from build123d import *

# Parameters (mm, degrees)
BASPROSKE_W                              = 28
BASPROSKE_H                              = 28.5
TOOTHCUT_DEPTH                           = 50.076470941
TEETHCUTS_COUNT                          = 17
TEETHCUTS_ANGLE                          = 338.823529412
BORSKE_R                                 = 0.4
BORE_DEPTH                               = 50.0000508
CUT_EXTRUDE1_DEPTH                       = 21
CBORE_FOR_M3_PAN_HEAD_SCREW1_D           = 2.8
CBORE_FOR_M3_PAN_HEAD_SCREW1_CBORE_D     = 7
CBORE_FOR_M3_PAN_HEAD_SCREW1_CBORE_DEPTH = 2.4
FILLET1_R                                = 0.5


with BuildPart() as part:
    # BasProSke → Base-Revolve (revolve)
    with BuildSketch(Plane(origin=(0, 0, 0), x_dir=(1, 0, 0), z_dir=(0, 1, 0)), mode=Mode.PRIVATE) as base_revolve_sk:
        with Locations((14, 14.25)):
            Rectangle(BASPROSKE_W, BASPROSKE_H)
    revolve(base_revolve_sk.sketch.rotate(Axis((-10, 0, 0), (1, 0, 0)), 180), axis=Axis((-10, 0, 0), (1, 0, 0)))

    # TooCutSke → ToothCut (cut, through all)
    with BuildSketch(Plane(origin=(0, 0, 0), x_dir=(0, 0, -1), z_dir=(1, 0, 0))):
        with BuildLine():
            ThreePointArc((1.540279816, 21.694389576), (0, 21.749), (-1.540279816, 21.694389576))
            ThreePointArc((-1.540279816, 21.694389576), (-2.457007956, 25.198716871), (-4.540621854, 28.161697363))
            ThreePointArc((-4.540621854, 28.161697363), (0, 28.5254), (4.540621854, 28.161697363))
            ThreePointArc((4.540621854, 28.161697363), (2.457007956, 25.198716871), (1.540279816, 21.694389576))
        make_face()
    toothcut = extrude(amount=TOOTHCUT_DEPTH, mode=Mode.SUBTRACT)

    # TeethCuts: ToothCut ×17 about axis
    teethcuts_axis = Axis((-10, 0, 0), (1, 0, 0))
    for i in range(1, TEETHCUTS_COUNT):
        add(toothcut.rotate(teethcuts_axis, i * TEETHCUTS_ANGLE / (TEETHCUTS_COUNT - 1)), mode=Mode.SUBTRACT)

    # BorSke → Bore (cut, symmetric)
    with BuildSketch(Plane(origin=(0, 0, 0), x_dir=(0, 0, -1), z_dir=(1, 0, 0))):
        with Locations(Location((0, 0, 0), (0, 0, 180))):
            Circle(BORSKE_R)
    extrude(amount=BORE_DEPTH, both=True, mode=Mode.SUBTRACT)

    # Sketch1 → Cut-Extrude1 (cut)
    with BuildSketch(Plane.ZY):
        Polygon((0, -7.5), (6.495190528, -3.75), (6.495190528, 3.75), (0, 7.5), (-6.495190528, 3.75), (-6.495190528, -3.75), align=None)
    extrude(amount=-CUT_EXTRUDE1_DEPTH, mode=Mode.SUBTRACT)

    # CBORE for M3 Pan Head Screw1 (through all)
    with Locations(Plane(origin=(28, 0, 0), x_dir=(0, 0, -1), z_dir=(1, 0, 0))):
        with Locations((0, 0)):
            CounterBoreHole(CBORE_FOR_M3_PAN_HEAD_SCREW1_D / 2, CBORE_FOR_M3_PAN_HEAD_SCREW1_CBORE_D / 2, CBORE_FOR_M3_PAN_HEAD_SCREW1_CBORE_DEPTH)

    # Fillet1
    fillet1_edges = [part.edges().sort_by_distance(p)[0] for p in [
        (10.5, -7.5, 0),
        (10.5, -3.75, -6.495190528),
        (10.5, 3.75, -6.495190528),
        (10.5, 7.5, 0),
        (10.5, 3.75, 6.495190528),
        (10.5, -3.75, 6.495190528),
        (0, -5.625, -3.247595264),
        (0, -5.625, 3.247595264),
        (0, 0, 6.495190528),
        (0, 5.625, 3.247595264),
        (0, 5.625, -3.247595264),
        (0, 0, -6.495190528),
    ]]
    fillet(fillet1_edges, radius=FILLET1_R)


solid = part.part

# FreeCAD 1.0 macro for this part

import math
import FreeCAD as App
import Part
import Sketcher

V = App.Vector
Q = App.Units.Quantity


def edges_at(feature, points):
    """Names of the edges that pass closest to the given points."""
    edges = feature.Shape.Edges
    near = lambda p: min(range(len(edges)), key=lambda i: edges[i].distToShape(Part.Vertex(*p))[0])
    return sorted({f"Edge{near(p) + 1}" for p in points})

doc = App.newDocument("Part")
params = doc.addObject("Spreadsheet::Sheet", "Params")
for row, (alias, value) in enumerate([
    ("sketch1_width", "28 mm"),
    ("sketch1_height", "28.5 mm"),
    ("revolution_angle", "360 deg"),
    ("sketch2_radius", "10.2 mm"),
    ("sketch3_diameter", "0.8 mm"),
    ("pocket2_length", "100.000102 mm"),
    ("sketch4_width", "7.5 mm"),
    ("pocket3_length", "21 mm"),
    ("sketch5_diameter", "2.8 mm"),
    ("hole_diameter", "2.8 mm"),
    ("hole_cbore_diameter", "7 mm"),
    ("hole_cbore_depth", "2.4 mm"),
    ("fillet_radius", "0.5 mm"),
], start=1):
    params.set(f"A{row}", alias)
    params.set(f"B{row}", "=" + value)
    params.setAlias(f"B{row}", alias)

body = doc.addObject("PartDesign::Body", "Body")

# Sketch on XZ plane
sketch1 = body.newObject("Sketcher::SketchObject", "Sketch")
sketch1.AttachmentSupport = (doc.getObject("XZ_Plane"), [""])
sketch1.MapMode = "FlatFace"
sketch1.addGeometry([
    Part.LineSegment(V(0, -28, 0), V(0, 0, 0)),
    Part.LineSegment(V(0, 0, 0), V(28, 0, 0)),
    Part.LineSegment(V(28, 0, 0), V(28, -28, 0)),
    Part.LineSegment(V(28, -28, 0), V(0, -28, 0)),
], False)
sketch1.addConstraint([
    Sketcher.Constraint("Coincident", 0, 2, 1, 1),
    Sketcher.Constraint("Coincident", 1, 2, 2, 1),
    Sketcher.Constraint("Coincident", 2, 2, 3, 1),
    Sketcher.Constraint("Coincident", 3, 2, 0, 1),
    Sketcher.Constraint("Vertical", 0),
    Sketcher.Constraint("Horizontal", 1),
    Sketcher.Constraint("Vertical", 2),
    Sketcher.Constraint("Horizontal", 3),
    Sketcher.Constraint("Coincident", 0, 2, -1, 1),
    Sketcher.Constraint("DistanceX", 1, 1, 1, 2, 28.0),
    Sketcher.Constraint("DistanceY", 0, 1, 0, 2, 28.5),
])
sketch1.setExpression("Constraints[9]", "Params.sketch1_width")
sketch1.setExpression("Constraints[10]", "Params.sketch1_height")
revolution = body.newObject("PartDesign::Revolution", "Revolution")
revolution.Profile = sketch1
revolution.ReferenceAxis = (sketch1, ["H_Axis"])
revolution.setExpression("Angle", "Params.revolution_angle")

# Sketch on YZ plane
sketch2 = body.newObject("Sketcher::SketchObject", "Sketch001")
sketch2.AttachmentSupport = (doc.getObject("YZ_Plane"), [""])
sketch2.MapMode = "FlatFace"
sketch2.addGeometry([
    Part.ArcOfCircle(Part.Circle(V(0, 0, 0), V(0, 0, 1), 21.7), math.radians(-4.06), math.radians(4.06)),
    Part.ArcOfCircle(Part.Circle(V(20.9, -11.7, 0), V(0, 0, 1), 10.2), math.radians(45), math.radians(86)),
    Part.ArcOfCircle(Part.Circle(V(0, 0, 0), V(0, 0, 1), 28.5), math.radians(-9.16), math.radians(9.16)),
    Part.ArcOfCircle(Part.Circle(V(20.9, 11.7, 0), V(0, 0, 1), 10.2), math.radians(-86), math.radians(-45)),
], False)
sketch2.addConstraint([
    Sketcher.Constraint("Coincident", 0, 1, 1, 2),
    Sketcher.Constraint("Coincident", 1, 1, 2, 1),
    Sketcher.Constraint("Coincident", 2, 2, 3, 2),
    Sketcher.Constraint("Coincident", 3, 1, 0, 2),
    Sketcher.Constraint("Coincident", 0, 3, -1, 1),
    Sketcher.Constraint("Coincident", 2, 3, -1, 1),
    Sketcher.Constraint("Equal", 1, 3),
    Sketcher.Constraint("Symmetric", 1, 3, 3, 3, -1),
    Sketcher.Constraint("Radius", 1, 10.2),
    Sketcher.Constraint("Radius", 0, 21.749),
    Sketcher.Constraint("Radius", 2, 28.5254),
    Sketcher.Constraint("DistanceY", 0, 1, 2, 2, 6.080902),
    Sketcher.Constraint("DistanceX", -1, 1, 1, 3, 20.906132),
])
sketch2.setExpression("Constraints[8]", "Params.sketch2_radius")
pocket1 = body.newObject("PartDesign::Pocket", "Pocket")
pocket1.Profile = sketch2
pocket1.Type = "ThroughAll"
pocket1.Reversed = True
doc.recompute()

polarpattern = body.newObject("PartDesign::PolarPattern", "PolarPattern")
polarpattern.Originals = [pocket1]
polarpattern.Axis = (doc.getObject("X_Axis"), [""])
polarpattern.Angle = 360
polarpattern.Occurrences = 17
body.Tip = polarpattern

# Sketch on YZ plane
sketch3 = body.newObject("Sketcher::SketchObject", "Sketch002")
sketch3.AttachmentSupport = (doc.getObject("YZ_Plane"), [""])
sketch3.MapMode = "FlatFace"
sketch3.addGeometry(Part.Circle(V(0, 0, 0), V(0, 0, 1), 0.4), False)
sketch3.addConstraint([
    Sketcher.Constraint("Coincident", 0, 3, -1, 1),
    Sketcher.Constraint("Diameter", 0, 0.8),
])
sketch3.setExpression("Constraints[1]", "Params.sketch3_diameter")
pocket2 = body.newObject("PartDesign::Pocket", "Pocket001")
pocket2.Profile = sketch3
pocket2.setExpression("Length", "Params.pocket2_length")
pocket2.Midplane = True

# Sketch on YZ plane
sketch4 = body.newObject("Sketcher::SketchObject", "Sketch003")
sketch4.AttachmentSupport = (doc.getObject("YZ_Plane"), [""])
sketch4.MapMode = "FlatFace"
sketch4.addGeometry([
    Part.LineSegment(V(-8, 0, 0), V(-4, 6, 0)),  # 0
    Part.LineSegment(V(-4, 6, 0), V(4, 6, 0)),  # 1
    Part.LineSegment(V(4, 6, 0), V(8, 0, 0)),  # 2
    Part.LineSegment(V(8, 0, 0), V(4, -6, 0)),  # 3
    Part.LineSegment(V(4, -6, 0), V(-4, -6, 0)),  # 4
    Part.LineSegment(V(-4, -6, 0), V(-8, 0, 0)),  # 5
], False)
sketch4.addConstraint([
    Sketcher.Constraint("Coincident", 0, 2, 1, 1),
    Sketcher.Constraint("Coincident", 1, 2, 2, 1),
    Sketcher.Constraint("Coincident", 2, 2, 3, 1),
    Sketcher.Constraint("Coincident", 3, 2, 4, 1),
    Sketcher.Constraint("Coincident", 4, 2, 5, 1),
    Sketcher.Constraint("Coincident", 5, 2, 0, 1),
    Sketcher.Constraint("Horizontal", 1),
    Sketcher.Constraint("Horizontal", 4),
    Sketcher.Constraint("Symmetric", 0, 2, 3, 2, -1, 1),
    Sketcher.Constraint("Symmetric", 2, 2, 5, 2, -1, 1),
    Sketcher.Constraint("PointOnObject", 2, 2, -1),
    Sketcher.Constraint("Parallel", 2, 5),
    Sketcher.Constraint("Vertical", 1, 2, 3, 2),
    Sketcher.Constraint("Angle", 0, Q("60 deg")),
    Sketcher.Constraint("DistanceX", 1, 1, 1, 2, 7.5),
    Sketcher.Constraint("DistanceX", 5, 2, 2, 2, 15.0),
])
sketch4.setExpression("Constraints[14]", "Params.sketch4_width")
pocket3 = body.newObject("PartDesign::Pocket", "Pocket002")
pocket3.Profile = sketch4
pocket3.setExpression("Length", "Params.pocket3_length")
pocket3.Reversed = True

# Sketch on YZ plane
sketch5 = body.newObject("Sketcher::SketchObject", "Sketch004")
sketch5.AttachmentSupport = (doc.getObject("YZ_Plane"), [""])
sketch5.MapMode = "FlatFace"
sketch5.AttachmentOffset = App.Placement(V(0, 0, 28), App.Rotation())
sketch5.addGeometry(Part.Circle(V(0, 0, 0), V(0, 0, 1), 1.4), False)
sketch5.addConstraint([
    Sketcher.Constraint("Coincident", 0, 3, -1, 1),
    Sketcher.Constraint("Diameter", 0, 2.8),
])
sketch5.setExpression("Constraints[1]", "Params.sketch5_diameter")
doc.recompute()
hole = body.newObject("PartDesign::Hole", "Hole")
hole.Profile = sketch5
hole.ThreadType = "None"
hole.setExpression("Diameter", "Params.hole_diameter")
hole.DepthType = "ThroughAll"
hole.HoleCutType = "Counterbore"
hole.setExpression("HoleCutDiameter", "Params.hole_cbore_diameter")
hole.setExpression("HoleCutDepth", "Params.hole_cbore_depth")
doc.recompute()

fillet = body.newObject("PartDesign::Fillet", "Fillet")
fillet.Base = (hole, edges_at(hole, [
    (10.5, -7.5, 0),
    (10.5, -3.75, -6.495),
    (10.5, 3.75, -6.495),
    (10.5, 7.5, 0),
    (10.5, 3.75, 6.495),
    (10.5, -3.75, 6.495),
    (0, -5.625, -3.248),
    (0, -5.625, 3.248),
    (0, 0, 6.495),
    (0, 5.625, 3.248),
    (0, 5.625, -3.248),
    (0, 0, -6.495),
]))
fillet.setExpression("Radius", "Params.fillet_radius")

doc.recompute()
